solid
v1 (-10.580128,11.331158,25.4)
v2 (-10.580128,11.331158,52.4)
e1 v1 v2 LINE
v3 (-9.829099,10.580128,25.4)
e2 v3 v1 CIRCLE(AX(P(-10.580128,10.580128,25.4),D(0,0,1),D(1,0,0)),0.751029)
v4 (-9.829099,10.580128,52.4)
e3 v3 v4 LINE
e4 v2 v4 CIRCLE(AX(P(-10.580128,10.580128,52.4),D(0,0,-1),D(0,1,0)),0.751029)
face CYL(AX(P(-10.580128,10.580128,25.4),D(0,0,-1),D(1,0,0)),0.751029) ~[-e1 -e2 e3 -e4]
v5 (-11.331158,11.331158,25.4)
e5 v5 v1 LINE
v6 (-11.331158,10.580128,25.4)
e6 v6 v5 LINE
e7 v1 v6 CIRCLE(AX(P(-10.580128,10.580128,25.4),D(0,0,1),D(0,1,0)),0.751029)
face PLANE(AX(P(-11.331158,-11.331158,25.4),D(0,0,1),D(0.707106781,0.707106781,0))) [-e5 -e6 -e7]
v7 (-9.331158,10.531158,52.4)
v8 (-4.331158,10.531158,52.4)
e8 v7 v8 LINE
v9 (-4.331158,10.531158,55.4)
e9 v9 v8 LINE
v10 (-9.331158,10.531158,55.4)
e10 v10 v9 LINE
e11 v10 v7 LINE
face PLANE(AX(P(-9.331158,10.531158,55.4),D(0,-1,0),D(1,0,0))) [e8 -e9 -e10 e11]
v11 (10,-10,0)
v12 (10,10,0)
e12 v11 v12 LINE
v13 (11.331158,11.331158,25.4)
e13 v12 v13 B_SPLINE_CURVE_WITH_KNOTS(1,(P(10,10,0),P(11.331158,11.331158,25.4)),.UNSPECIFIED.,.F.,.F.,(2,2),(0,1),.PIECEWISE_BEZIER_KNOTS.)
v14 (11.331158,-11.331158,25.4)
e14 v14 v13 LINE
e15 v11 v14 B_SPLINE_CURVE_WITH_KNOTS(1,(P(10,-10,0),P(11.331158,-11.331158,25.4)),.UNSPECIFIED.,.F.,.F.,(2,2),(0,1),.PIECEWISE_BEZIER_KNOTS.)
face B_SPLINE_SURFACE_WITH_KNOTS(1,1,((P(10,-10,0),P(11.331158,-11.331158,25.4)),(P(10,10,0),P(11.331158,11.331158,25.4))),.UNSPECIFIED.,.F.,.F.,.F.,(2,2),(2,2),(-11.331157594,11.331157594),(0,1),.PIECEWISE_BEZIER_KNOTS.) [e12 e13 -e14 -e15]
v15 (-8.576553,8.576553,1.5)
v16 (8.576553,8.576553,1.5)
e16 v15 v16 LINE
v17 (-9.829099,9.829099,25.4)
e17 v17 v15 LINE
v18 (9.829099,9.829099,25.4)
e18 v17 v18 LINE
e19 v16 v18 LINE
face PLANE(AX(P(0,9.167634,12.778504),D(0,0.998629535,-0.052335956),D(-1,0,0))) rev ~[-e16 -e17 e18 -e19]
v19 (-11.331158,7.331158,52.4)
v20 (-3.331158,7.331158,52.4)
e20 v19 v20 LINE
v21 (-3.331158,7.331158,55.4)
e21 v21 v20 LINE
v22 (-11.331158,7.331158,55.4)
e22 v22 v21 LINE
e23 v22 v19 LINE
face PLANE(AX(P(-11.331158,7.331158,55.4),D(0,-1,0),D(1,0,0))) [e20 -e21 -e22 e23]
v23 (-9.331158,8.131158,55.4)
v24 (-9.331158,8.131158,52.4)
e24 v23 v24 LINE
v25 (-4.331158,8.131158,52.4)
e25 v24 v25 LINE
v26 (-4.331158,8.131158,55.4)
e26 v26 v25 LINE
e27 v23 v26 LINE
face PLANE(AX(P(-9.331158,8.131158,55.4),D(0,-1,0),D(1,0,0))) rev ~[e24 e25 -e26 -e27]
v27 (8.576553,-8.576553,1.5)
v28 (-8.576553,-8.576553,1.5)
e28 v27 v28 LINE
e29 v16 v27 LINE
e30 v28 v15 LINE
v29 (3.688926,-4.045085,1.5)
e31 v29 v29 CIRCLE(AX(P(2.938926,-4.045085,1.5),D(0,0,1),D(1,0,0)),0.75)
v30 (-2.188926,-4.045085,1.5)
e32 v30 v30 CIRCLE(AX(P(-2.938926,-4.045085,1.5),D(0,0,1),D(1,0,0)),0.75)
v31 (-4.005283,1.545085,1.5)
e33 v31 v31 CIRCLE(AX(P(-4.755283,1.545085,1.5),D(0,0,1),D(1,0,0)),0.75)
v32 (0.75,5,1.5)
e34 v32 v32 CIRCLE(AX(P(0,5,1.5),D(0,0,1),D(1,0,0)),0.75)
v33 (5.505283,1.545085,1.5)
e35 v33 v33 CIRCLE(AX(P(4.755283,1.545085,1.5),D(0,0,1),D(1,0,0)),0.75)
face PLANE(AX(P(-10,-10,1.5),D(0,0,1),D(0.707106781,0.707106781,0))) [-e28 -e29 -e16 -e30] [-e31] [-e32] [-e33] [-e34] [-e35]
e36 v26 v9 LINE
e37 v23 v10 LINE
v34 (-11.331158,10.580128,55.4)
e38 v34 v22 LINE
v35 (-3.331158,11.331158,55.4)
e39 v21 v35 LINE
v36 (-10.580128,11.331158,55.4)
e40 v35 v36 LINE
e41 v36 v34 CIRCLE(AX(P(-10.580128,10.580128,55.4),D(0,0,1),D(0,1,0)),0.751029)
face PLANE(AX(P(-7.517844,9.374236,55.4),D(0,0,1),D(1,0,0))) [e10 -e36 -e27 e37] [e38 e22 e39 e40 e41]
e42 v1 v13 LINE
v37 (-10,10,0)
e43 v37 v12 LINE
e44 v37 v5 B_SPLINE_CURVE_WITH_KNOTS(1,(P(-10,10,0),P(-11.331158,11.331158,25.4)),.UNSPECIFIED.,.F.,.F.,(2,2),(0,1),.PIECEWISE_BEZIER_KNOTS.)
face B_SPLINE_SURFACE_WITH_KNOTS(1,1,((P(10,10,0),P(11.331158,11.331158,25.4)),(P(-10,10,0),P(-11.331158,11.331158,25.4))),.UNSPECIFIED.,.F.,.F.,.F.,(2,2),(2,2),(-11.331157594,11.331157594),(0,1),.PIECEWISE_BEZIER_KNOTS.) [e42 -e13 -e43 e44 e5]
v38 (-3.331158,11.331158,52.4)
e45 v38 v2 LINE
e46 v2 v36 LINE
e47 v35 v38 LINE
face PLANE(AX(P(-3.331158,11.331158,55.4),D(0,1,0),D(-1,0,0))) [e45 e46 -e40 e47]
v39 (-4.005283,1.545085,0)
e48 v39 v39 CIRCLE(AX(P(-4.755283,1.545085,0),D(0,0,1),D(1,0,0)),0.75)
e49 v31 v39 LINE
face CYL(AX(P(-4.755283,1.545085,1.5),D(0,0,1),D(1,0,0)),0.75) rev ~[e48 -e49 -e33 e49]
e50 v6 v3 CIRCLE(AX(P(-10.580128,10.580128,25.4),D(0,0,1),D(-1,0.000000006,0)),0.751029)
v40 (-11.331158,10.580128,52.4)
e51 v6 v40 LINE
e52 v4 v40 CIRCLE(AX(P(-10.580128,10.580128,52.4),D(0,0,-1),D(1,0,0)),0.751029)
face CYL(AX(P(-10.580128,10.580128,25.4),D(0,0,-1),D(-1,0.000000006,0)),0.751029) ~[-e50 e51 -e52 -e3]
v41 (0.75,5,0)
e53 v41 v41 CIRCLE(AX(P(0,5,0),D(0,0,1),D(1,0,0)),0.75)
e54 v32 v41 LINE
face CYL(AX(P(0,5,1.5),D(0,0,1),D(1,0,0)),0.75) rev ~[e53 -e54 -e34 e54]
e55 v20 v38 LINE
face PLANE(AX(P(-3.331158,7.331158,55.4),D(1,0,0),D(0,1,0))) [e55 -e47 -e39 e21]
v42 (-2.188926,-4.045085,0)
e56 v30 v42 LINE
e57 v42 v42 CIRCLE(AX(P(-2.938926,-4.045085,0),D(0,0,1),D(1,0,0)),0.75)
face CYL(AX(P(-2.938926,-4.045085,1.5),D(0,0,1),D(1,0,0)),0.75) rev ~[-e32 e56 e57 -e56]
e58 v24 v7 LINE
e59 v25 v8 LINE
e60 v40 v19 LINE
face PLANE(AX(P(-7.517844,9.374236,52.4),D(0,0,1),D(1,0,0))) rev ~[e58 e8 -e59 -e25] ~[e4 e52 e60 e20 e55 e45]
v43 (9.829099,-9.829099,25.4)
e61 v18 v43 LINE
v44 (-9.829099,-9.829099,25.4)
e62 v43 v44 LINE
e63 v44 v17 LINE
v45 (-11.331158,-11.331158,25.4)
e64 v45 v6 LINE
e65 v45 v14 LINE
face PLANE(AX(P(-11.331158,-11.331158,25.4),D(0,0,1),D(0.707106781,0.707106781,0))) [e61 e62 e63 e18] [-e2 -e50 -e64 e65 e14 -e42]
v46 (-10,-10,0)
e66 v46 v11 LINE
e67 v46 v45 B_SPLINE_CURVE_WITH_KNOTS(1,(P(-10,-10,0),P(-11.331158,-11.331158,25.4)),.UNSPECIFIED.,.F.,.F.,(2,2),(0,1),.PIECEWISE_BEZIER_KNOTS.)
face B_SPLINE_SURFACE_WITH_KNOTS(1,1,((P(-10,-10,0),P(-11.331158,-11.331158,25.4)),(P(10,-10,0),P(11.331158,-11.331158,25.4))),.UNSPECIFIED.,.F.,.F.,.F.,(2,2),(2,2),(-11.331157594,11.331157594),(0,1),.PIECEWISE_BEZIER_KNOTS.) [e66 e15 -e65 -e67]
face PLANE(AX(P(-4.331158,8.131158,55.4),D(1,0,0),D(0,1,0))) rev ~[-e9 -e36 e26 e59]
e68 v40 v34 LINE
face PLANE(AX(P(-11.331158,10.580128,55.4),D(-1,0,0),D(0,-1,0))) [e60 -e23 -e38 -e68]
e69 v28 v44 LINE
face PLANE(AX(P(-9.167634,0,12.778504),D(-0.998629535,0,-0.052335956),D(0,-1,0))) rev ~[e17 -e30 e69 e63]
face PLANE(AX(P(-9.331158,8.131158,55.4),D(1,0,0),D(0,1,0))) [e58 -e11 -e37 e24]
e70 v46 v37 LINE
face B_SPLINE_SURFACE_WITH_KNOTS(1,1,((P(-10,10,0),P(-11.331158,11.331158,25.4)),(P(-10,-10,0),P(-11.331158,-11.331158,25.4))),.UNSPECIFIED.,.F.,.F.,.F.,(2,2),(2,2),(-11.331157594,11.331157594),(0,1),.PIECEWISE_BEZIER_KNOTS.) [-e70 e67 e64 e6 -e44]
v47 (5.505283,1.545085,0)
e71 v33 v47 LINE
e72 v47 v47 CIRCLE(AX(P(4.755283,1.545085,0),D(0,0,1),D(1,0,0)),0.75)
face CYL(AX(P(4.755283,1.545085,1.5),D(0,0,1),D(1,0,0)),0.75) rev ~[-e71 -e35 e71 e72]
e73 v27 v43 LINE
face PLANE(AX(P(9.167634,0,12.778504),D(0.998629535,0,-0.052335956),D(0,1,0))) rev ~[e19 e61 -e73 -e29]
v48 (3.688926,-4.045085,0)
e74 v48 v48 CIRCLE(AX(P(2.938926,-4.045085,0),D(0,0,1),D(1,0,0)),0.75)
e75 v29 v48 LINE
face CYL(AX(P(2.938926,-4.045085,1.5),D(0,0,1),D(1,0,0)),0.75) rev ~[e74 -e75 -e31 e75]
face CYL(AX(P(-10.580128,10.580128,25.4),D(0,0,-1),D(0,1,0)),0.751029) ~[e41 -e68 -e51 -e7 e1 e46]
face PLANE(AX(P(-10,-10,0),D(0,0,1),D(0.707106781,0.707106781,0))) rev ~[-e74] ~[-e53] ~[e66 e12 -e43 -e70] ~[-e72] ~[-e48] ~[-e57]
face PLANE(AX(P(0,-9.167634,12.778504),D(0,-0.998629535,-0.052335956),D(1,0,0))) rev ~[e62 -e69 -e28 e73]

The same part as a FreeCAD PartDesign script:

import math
import FreeCAD as App
import Part
import Sketcher
from FreeCAD import Vector


def faces_at(feature, points):
    """Names of the faces that lie closest to the given points."""
    faces = feature.Shape.Faces
    near = lambda p: min(range(len(faces)), key=lambda i: faces[i].distToShape(Part.Vertex(*p))[0])
    return sorted({f"Face{near(p) + 1}" for p in points})


def add_polygon(sketch, points):
    """Adds a closed chain of lines whose ends are joined by coincident constraints."""
    first, n = sketch.GeometryCount, len(points)
    for a, b in zip(points, points[1:] + points[:1]):
        sketch.addGeometry(Part.LineSegment(App.Vector(*a, 0), App.Vector(*b, 0)), False)
    for i in range(n):
        sketch.addConstraint(Sketcher.Constraint("Coincident", first + i, 2, first + (i + 1) % n, 1))

doc = App.newDocument("Part")
body = doc.addObject("PartDesign::Body", "Body")

sketch1 = doc.addObject("Sketcher::SketchObject", "Sketch")
body.addObject(sketch1)
sketch1.AttachmentSupport = (doc.XY_Plane, [""])
sketch1.MapMode = "FlatFace"
add_polygon(sketch1, [(-10, 10), (-10, -10), (10, -10), (10, 10)])
sketch1.addConstraint([
    Sketcher.Constraint("Vertical", 0),
    Sketcher.Constraint("Horizontal", 1),
    Sketcher.Constraint("Vertical", 2),
    Sketcher.Constraint("Horizontal", 3),
    Sketcher.Constraint("Symmetric", 0, 2, 2, 2, -1, 1),
    Sketcher.Constraint("Equal", 3, 0),
    Sketcher.Constraint("DistanceX", 1, 1, 1, 2, 20.0),
])
pad1 = doc.addObject("PartDesign::Pad", "Pad")
body.addObject(pad1)
pad1.Profile = sketch1
pad1.Length = 25.4
pad1.TaperAngle = 3
doc.recompute()

thickness = doc.addObject("PartDesign::Thickness", "Thickness")
body.addObject(thickness)
thickness.Base = (pad1, faces_at(pad1, [(0, 0, 25.4)]))
thickness.Value = 1.5
thickness.Reversed = True
thickness.Join = "Arc"

sketch2 = doc.addObject("Sketcher::SketchObject", "Sketch001")
body.addObject(sketch2)
sketch2.AttachmentSupport = (doc.XY_Plane, [""])
sketch2.MapMode = "FlatFace"
sketch2.AttachmentOffset = App.Placement(Vector(0, 0, 1.5), App.Rotation())
sketch2.addGeometry([
    Part.Circle(Vector(0, 5, 0), Vector(0, 0, 1), 0.75),
    Part.Circle(Vector(4.755283, 1.545085, 0), Vector(0, 0, 1), 0.75),
    Part.Circle(Vector(2.938926, -4.045085, 0), Vector(0, 0, 1), 0.75),
    Part.Circle(Vector(-2.938926, -4.045085, 0), Vector(0, 0, 1), 0.75),
    Part.Circle(Vector(-4.755283, 1.545085, 0), Vector(0, 0, 1), 0.75),
], False)
sketch2.addConstraint([
    Sketcher.Constraint("Equal", 0, 1),
    Sketcher.Constraint("Equal", 1, 2),
    Sketcher.Constraint("Equal", 2, 3),
    Sketcher.Constraint("Equal", 3, 4),
    Sketcher.Constraint("Symmetric", 2, 3, 3, 3, -2),
    Sketcher.Constraint("Symmetric", 1, 3, 4, 3, -2),
    Sketcher.Constraint("PointOnObject", 0, 3, -2),
    Sketcher.Constraint("Diameter", 0, 1.5),
    Sketcher.Constraint("DistanceY", -1, 1, 0, 3, 5.0),
    Sketcher.Constraint("DistanceY", 2, 3, 1, 3, 5.59017),
    Sketcher.Constraint("DistanceX", 3, 3, 1, 3, 7.694209),
    Sketcher.Constraint("DistanceX", -1, 1, 1, 3, 4.755283),
    Sketcher.Constraint("DistanceY", -1, 1, 1, 3, 1.545085),
])
pocket1 = doc.addObject("PartDesign::Pocket", "Pocket")
body.addObject(pocket1)
pocket1.Profile = sketch2
pocket1.Type = "ThroughAll"

sketch3 = doc.addObject("Sketcher::SketchObject", "Sketch002")
body.addObject(sketch3)
sketch3.AttachmentSupport = (doc.XY_Plane, [""])
sketch3.MapMode = "FlatFace"
sketch3.AttachmentOffset = App.Placement(Vector(0, 0, 25.4), App.Rotation())
sketch3.addGeometry([
    Part.ArcOfCircle(Part.Circle(Vector(-10.580128, 10.580128, 0), Vector(0, 0, 1), 0.751029), math.radians(180), math.radians(360)),
    Part.ArcOfCircle(Part.Circle(Vector(-10.580128, 10.580128, 0), Vector(0, 0, 1), 0.751029), math.radians(0), math.radians(90)),
    Part.ArcOfCircle(Part.Circle(Vector(-10.580128, 10.580128, 0), Vector(0, 0, 1), 0.751029), math.radians(90), math.radians(180)),
], False)
sketch3.addConstraint([
    Sketcher.Constraint("Tangent", 0, 2, 1, 1),
    Sketcher.Constraint("Tangent", 1, 2, 2, 1),
    Sketcher.Constraint("Tangent", 2, 2, 0, 1),
    Sketcher.Constraint("Horizontal", 2, 3, 0, 2),
    Sketcher.Constraint("Horizontal", 0, 2, 2, 2),
    Sketcher.Constraint("Vertical", 2, 3, 1, 2),
    Sketcher.Constraint("Radius", 0, 0.751029),
    Sketcher.Constraint("DistanceX", 0, 2, -1, 1, 9.829099),
    Sketcher.Constraint("DistanceY", -1, 1, 0, 3, 10.580128),
])
pad2 = doc.addObject("PartDesign::Pad", "Pad001")
body.addObject(pad2)
pad2.Profile = sketch3
pad2.Length = 30

sketch4 = doc.addObject("Sketcher::SketchObject", "Sketch003")
body.addObject(sketch4)
sketch4.AttachmentSupport = (doc.XY_Plane, [""])
sketch4.MapMode = "FlatFace"
sketch4.AttachmentOffset = App.Placement(Vector(0, 0, 55.4), App.Rotation())
sketch4.addGeometry(Part.LineSegment(Vector(-3.331158, 11.331158, 0), Vector(-10.580128, 11.331158, 0)), False)
sketch4.addGeometry(Part.ArcOfCircle(Part.Circle(Vector(-10.580128, 10.580128, 0), Vector(0, 0, 1), 0.751029), math.radians(0), math.radians(90)), False)
sketch4.addGeometry(Part.ArcOfCircle(Part.Circle(Vector(-10.580128, 10.580128, 0), Vector(0, 0, 1), 0.751029), math.radians(180), math.radians(360)), False)
sketch4.addGeometry(Part.LineSegment(Vector(-11.331158, 10.580128, 0), Vector(-11.331158, 7.331158, 0)), False)
sketch4.addGeometry(Part.LineSegment(Vector(-11.331158, 7.331158, 0), Vector(-3.331158, 7.331158, 0)), False)
sketch4.addGeometry(Part.LineSegment(Vector(-3.331158, 7.331158, 0), Vector(-3.331158, 11.331158, 0)), False)
add_polygon(sketch4, [(-4.331158, 8.131158), (-9.331158, 8.131158), (-9.331158, 10.531158), (-4.331158, 10.531158)])
sketch4.addConstraint([
    Sketcher.Constraint("Tangent", 0, 2, 1, 2),
    Sketcher.Constraint("Tangent", 1, 1, 2, 2),
    Sketcher.Constraint("Tangent", 2, 1, 3, 1),
    Sketcher.Constraint("Coincident", 3, 2, 4, 1),
    Sketcher.Constraint("Coincident", 4, 2, 5, 1),
    Sketcher.Constraint("Coincident", 5, 2, 0, 1),
    Sketcher.Constraint("Horizontal", 0),
    Sketcher.Constraint("Vertical", 3),
    Sketcher.Constraint("Horizontal", 4),
    Sketcher.Constraint("Vertical", 5),
    Sketcher.Constraint("Horizontal", 6),
    Sketcher.Constraint("Vertical", 7),
    Sketcher.Constraint("Horizontal", 8),
    Sketcher.Constraint("Vertical", 9),
    Sketcher.Constraint("Equal", 1, 2),
    Sketcher.Constraint("Horizontal", 2, 3, 1, 1),
    Sketcher.Constraint("DistanceX", 4, 1, 4, 2, 8.0),
    Sketcher.Constraint("DistanceX", 6, 2, 6, 1, 5.0),
    Sketcher.Constraint("DistanceY", 5, 1, 5, 2, 4.0),
    Sketcher.Constraint("DistanceY", 7, 1, 7, 2, 2.4),
    Sketcher.Constraint("DistanceX", 3, 2, 6, 2, 2.0),
    Sketcher.Constraint("DistanceY", 3, 2, 6, 2, 0.8),
    Sketcher.Constraint("Radius", 1, 0.751029),
    Sketcher.Constraint("DistanceX", 1, 1, -1, 1, 9.829099),
    Sketcher.Constraint("DistanceY", -1, 1, 1, 3, 10.580128),
])
pad3 = doc.addObject("PartDesign::Pad", "Pad002")
body.addObject(pad3)
pad3.Profile = sketch4
pad3.Length = 3
pad3.Reversed = True

doc.recompute()
